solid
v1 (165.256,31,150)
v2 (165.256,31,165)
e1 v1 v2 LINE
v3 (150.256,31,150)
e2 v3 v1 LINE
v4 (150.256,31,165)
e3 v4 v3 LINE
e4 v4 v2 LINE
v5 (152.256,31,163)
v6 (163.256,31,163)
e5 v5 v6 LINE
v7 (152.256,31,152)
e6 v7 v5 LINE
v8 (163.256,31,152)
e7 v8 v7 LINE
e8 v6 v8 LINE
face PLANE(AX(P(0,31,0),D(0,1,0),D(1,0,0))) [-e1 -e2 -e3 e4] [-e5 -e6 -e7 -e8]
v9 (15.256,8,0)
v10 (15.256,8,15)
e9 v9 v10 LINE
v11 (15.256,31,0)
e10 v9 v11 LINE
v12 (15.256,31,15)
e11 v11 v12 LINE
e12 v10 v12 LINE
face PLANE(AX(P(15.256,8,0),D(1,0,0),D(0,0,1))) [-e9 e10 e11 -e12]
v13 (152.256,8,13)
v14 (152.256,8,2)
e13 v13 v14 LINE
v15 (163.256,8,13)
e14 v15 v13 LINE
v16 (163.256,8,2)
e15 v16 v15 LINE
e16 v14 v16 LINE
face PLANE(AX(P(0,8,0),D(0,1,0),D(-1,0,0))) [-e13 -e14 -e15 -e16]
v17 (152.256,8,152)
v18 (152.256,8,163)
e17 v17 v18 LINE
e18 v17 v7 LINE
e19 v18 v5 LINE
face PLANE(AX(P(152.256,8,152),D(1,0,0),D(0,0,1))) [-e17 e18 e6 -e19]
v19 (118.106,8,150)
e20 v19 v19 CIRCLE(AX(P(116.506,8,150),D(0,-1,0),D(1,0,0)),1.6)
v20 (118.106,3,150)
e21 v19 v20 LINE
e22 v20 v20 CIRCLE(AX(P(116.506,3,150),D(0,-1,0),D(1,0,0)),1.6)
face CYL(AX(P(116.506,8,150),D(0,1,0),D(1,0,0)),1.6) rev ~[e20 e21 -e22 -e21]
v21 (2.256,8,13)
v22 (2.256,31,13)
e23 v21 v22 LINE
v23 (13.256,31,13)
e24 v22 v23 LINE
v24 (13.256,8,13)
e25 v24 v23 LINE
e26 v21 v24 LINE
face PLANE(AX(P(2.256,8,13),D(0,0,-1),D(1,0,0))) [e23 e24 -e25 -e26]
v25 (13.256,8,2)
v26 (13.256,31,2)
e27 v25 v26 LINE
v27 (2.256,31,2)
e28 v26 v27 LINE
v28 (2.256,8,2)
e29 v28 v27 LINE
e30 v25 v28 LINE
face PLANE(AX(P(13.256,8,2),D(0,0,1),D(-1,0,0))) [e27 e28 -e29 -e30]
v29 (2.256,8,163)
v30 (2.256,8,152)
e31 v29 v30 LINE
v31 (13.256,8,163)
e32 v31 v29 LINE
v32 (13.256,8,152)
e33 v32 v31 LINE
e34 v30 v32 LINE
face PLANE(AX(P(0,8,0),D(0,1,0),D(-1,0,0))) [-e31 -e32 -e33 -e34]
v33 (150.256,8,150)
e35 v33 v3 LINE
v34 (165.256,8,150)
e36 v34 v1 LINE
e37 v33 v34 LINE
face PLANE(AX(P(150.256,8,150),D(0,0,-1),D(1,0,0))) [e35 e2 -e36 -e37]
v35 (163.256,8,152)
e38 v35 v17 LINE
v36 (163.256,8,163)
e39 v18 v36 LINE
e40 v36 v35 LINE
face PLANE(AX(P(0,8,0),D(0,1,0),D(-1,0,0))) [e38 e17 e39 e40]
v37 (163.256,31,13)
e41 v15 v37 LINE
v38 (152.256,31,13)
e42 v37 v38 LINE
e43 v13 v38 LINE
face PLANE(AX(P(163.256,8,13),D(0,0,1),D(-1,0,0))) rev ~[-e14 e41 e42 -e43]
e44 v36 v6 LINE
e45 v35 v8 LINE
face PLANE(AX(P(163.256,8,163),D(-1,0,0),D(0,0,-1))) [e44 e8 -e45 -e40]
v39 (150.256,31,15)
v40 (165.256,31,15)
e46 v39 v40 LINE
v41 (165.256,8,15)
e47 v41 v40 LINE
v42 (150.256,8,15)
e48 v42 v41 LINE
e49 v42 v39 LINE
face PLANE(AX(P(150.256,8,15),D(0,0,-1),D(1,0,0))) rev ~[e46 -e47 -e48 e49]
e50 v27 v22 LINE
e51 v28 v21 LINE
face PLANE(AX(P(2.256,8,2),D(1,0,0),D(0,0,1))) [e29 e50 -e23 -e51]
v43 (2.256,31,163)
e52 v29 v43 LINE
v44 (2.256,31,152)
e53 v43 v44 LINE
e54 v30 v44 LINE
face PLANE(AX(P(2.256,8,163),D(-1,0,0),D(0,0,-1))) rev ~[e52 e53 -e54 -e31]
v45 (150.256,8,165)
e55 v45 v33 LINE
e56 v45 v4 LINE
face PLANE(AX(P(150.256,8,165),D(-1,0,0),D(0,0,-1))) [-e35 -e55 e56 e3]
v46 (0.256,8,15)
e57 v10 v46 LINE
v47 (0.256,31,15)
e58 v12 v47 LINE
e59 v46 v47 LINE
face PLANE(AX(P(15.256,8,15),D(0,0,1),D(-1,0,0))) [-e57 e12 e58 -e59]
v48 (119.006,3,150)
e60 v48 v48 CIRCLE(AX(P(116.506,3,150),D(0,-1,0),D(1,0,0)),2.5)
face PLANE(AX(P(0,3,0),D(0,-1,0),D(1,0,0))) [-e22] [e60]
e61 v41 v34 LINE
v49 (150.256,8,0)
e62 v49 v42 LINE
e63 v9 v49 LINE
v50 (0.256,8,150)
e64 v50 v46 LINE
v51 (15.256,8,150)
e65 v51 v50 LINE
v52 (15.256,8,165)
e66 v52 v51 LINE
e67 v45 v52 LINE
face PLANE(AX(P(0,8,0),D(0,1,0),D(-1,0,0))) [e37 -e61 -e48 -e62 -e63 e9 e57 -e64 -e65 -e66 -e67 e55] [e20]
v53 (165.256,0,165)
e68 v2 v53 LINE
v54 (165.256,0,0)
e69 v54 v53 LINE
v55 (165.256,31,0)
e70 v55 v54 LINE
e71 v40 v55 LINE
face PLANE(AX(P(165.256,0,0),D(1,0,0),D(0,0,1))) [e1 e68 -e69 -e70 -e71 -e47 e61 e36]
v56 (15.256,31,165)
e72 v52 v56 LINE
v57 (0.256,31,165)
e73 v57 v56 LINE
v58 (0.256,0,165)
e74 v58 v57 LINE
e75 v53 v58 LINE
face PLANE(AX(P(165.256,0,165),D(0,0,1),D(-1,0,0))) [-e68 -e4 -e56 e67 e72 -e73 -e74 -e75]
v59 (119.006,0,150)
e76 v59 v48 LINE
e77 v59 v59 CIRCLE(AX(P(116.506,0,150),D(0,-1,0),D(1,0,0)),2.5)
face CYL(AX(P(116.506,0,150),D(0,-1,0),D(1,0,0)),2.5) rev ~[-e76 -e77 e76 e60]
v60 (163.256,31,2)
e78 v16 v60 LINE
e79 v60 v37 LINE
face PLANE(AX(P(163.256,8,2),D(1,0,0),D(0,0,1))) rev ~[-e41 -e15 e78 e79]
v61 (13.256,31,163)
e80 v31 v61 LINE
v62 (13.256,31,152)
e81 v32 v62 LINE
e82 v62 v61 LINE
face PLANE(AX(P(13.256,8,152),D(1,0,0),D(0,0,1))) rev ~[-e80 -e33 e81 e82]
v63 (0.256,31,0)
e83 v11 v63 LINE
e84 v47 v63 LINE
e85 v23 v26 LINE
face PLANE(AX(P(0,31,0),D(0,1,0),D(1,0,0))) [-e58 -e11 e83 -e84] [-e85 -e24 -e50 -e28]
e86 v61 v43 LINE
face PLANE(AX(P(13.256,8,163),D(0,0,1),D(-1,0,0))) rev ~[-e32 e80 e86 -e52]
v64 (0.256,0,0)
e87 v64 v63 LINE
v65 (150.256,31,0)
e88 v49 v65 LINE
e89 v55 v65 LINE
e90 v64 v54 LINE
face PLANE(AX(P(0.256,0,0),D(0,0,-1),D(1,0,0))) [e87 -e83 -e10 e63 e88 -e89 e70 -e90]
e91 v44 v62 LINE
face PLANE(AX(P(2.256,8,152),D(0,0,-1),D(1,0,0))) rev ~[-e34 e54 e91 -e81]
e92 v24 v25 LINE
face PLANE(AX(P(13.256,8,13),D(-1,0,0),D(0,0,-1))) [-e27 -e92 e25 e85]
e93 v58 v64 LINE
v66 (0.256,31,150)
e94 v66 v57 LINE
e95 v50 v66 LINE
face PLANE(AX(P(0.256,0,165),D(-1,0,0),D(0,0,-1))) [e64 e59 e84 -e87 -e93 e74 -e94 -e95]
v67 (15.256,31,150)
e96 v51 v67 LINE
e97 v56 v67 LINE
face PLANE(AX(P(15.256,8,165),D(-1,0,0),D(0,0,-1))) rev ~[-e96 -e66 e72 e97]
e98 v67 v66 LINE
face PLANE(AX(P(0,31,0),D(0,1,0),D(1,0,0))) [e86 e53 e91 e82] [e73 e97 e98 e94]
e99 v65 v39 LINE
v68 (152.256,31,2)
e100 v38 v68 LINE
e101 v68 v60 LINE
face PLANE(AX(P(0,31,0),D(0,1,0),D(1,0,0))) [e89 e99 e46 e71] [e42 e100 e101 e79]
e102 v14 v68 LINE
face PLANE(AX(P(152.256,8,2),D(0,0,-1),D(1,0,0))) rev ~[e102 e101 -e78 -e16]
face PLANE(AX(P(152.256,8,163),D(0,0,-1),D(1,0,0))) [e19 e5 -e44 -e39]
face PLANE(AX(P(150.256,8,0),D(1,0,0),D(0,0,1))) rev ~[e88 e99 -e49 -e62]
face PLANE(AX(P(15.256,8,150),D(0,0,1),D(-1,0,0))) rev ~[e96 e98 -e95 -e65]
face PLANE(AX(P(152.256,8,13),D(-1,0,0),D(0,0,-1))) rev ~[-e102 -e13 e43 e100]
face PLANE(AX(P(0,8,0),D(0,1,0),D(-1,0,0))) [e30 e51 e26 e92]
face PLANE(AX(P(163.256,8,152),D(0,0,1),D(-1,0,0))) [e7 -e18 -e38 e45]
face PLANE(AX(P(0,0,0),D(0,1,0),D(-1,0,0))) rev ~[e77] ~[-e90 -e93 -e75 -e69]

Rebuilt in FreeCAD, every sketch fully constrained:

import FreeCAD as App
import Part
import Sketcher
from FreeCAD import Vector

doc = App.newDocument("Part")
body = doc.addObject("PartDesign::Body", "Body")

sketch1 = doc.addObject("Sketcher::SketchObject", "Sketch")
body.addObject(sketch1)
sketch1.AttachmentSupport = (doc.XZ_Plane, [""])
sketch1.MapMode = "FlatFace"
sketch1.addGeometry([
    Part.LineSegment(Vector(165, 0, 0), Vector(0, 0, 0)),
    Part.LineSegment(Vector(0, 0, 0), Vector(0, 165, 0)),
    Part.LineSegment(Vector(0, 165, 0), Vector(165, 165, 0)),
    Part.LineSegment(Vector(165, 165, 0), Vector(165, 0, 0)),
], False)
sketch1.addConstraint([
    Sketcher.Constraint("Coincident", 0, 2, 1, 1),
    Sketcher.Constraint("Coincident", 1, 2, 2, 1),
    Sketcher.Constraint("Coincident", 2, 2, 3, 1),
    Sketcher.Constraint("Coincident", 3, 2, 0, 1),
    Sketcher.Constraint("Horizontal", 0),
    Sketcher.Constraint("Vertical", 1),
    Sketcher.Constraint("Horizontal", 2),
    Sketcher.Constraint("Vertical", 3),
    Sketcher.Constraint("PointOnObject", 0, 2, -1),
    Sketcher.Constraint("Equal", 2, 1),
    Sketcher.Constraint("DistanceX", 0, 2, 0, 1, 165.0),
    Sketcher.Constraint("DistanceX", -1, 1, 0, 2, 0.256),
])
pad1 = doc.addObject("PartDesign::Pad", "Pad")
body.addObject(pad1)
pad1.Profile = sketch1
pad1.Length = 8
pad1.Reversed = True

sketch2 = doc.addObject("Sketcher::SketchObject", "Sketch001")
body.addObject(sketch2)
sketch2.AttachmentSupport = (doc.XZ_Plane, [""])
sketch2.MapMode = "FlatFace"
sketch2.AttachmentOffset = App.Placement(Vector(0, 0, -8), App.Rotation())
sketch2.addGeometry([
    Part.LineSegment(Vector(165, 15, 0), Vector(165, 0, 0)),
    Part.LineSegment(Vector(165, 0, 0), Vector(150, 0, 0)),
    Part.LineSegment(Vector(150, 0, 0), Vector(150, 15, 0)),
    Part.LineSegment(Vector(150, 15, 0), Vector(165, 15, 0)),
    Part.LineSegment(Vector(163, 13, 0), Vector(152, 13, 0)),
    Part.LineSegment(Vector(152, 13, 0), Vector(152, 2, 0)),
    Part.LineSegment(Vector(152, 2, 0), Vector(163, 2, 0)),
    Part.LineSegment(Vector(163, 2, 0), Vector(163, 13, 0)),
    Part.LineSegment(Vector(150, 150, 0), Vector(150, 165, 0)),
    Part.LineSegment(Vector(150, 165, 0), Vector(165, 165, 0)),
    Part.LineSegment(Vector(165, 165, 0), Vector(165, 150, 0)),
    Part.LineSegment(Vector(165, 150, 0), Vector(150, 150, 0)),
    Part.LineSegment(Vector(152, 152, 0), Vector(163, 152, 0)),
    Part.LineSegment(Vector(163, 152, 0), Vector(163, 163, 0)),
    Part.LineSegment(Vector(163, 163, 0), Vector(152, 163, 0)),
    Part.LineSegment(Vector(152, 163, 0), Vector(152, 152, 0)),
    Part.LineSegment(Vector(0, 165, 0), Vector(15, 165, 0)),
    Part.LineSegment(Vector(15, 165, 0), Vector(15, 150, 0)),
    Part.LineSegment(Vector(15, 150, 0), Vector(0, 150, 0)),
    Part.LineSegment(Vector(0, 150, 0), Vector(0, 165, 0)),
    Part.LineSegment(Vector(2, 163, 0), Vector(2, 152, 0)),
    Part.LineSegment(Vector(2, 152, 0), Vector(13, 152, 0)),
    Part.LineSegment(Vector(13, 152, 0), Vector(13, 163, 0)),
    Part.LineSegment(Vector(13, 163, 0), Vector(2, 163, 0)),
    Part.LineSegment(Vector(15, 15, 0), Vector(15, 0, 0)),
    Part.LineSegment(Vector(15, 0, 0), Vector(0, 0, 0)),
    Part.LineSegment(Vector(0, 0, 0), Vector(0, 15, 0)),
    Part.LineSegment(Vector(0, 15, 0), Vector(15, 15, 0)),
    Part.LineSegment(Vector(13, 2, 0), Vector(13, 13, 0)),
    Part.LineSegment(Vector(13, 13, 0), Vector(2, 13, 0)),
    Part.LineSegment(Vector(2, 13, 0), Vector(2, 2, 0)),
    Part.LineSegment(Vector(2, 2, 0), Vector(13, 2, 0)),
], False)
sketch2.addConstraint([
    Sketcher.Constraint("Coincident", 0, 2, 1, 1),
    Sketcher.Constraint("Coincident", 1, 2, 2, 1),
    Sketcher.Constraint("Coincident", 2, 2, 3, 1),
    Sketcher.Constraint("Coincident", 3, 2, 0, 1),
    Sketcher.Constraint("Coincident", 4, 2, 5, 1),
    Sketcher.Constraint("Coincident", 5, 2, 6, 1),
    Sketcher.Constraint("Coincident", 6, 2, 7, 1),
    Sketcher.Constraint("Coincident", 7, 2, 4, 1),
    Sketcher.Constraint("Coincident", 8, 2, 9, 1),
    Sketcher.Constraint("Coincident", 9, 2, 10, 1),
    Sketcher.Constraint("Coincident", 10, 2, 11, 1),
    Sketcher.Constraint("Coincident", 11, 2, 8, 1),
    Sketcher.Constraint("Coincident", 12, 2, 13, 1),
    Sketcher.Constraint("Coincident", 13, 2, 14, 1),
    Sketcher.Constraint("Coincident", 14, 2, 15, 1),
    Sketcher.Constraint("Coincident", 15, 2, 12, 1),
    Sketcher.Constraint("Coincident", 16, 2, 17, 1),
    Sketcher.Constraint("Coincident", 17, 2, 18, 1),
    Sketcher.Constraint("Coincident", 18, 2, 19, 1),
    Sketcher.Constraint("Coincident", 19, 2, 16, 1),
    Sketcher.Constraint("Coincident", 20, 2, 21, 1),
    Sketcher.Constraint("Coincident", 21, 2, 22, 1),
    Sketcher.Constraint("Coincident", 22, 2, 23, 1),
    Sketcher.Constraint("Coincident", 23, 2, 20, 1),
    Sketcher.Constraint("Coincident", 24, 2, 25, 1),
    Sketcher.Constraint("Coincident", 25, 2, 26, 1),
    Sketcher.Constraint("Coincident", 26, 2, 27, 1),
    Sketcher.Constraint("Coincident", 27, 2, 24, 1),
    Sketcher.Constraint("Coincident", 28, 2, 29, 1),
    Sketcher.Constraint("Coincident", 29, 2, 30, 1),
    Sketcher.Constraint("Coincident", 30, 2, 31, 1),
    Sketcher.Constraint("Coincident", 31, 2, 28, 1),
    Sketcher.Constraint("Vertical", 0),
    Sketcher.Constraint("Horizontal", 1),
    Sketcher.Constraint("Vertical", 2),
    Sketcher.Constraint("Horizontal", 3),
    Sketcher.Constraint("Horizontal", 4),
    Sketcher.Constraint("Vertical", 5),
    Sketcher.Constraint("Horizontal", 6),
    Sketcher.Constraint("Vertical", 7),
    Sketcher.Constraint("Vertical", 8),
    Sketcher.Constraint("Horizontal", 9),
    Sketcher.Constraint("Vertical", 10),
    Sketcher.Constraint("Horizontal", 11),
    Sketcher.Constraint("Horizontal", 12),
    Sketcher.Constraint("Vertical", 13),
    Sketcher.Constraint("Horizontal", 14),
    Sketcher.Constraint("Vertical", 15),
    Sketcher.Constraint("Horizontal", 16),
    Sketcher.Constraint("Vertical", 17),
    Sketcher.Constraint("Horizontal", 18),
    Sketcher.Constraint("Vertical", 19),
    Sketcher.Constraint("Vertical", 20),
    Sketcher.Constraint("Horizontal", 21),
    Sketcher.Constraint("Vertical", 22),
    Sketcher.Constraint("Horizontal", 23),
    Sketcher.Constraint("Vertical", 24),
    Sketcher.Constraint("Horizontal", 25),
    Sketcher.Constraint("Vertical", 26),
    Sketcher.Constraint("Horizontal", 27),
    Sketcher.Constraint("Vertical", 28),
    Sketcher.Constraint("Horizontal", 29),
    Sketcher.Constraint("Vertical", 30),
    Sketcher.Constraint("Horizontal", 31),
    Sketcher.Constraint("PointOnObject", 0, 2, -1),
    Sketcher.Constraint("PointOnObject", 24, 2, -1),
    Sketcher.Constraint("Horizontal", 9, 2, 16, 2),
    Sketcher.Constraint("Horizontal", 11, 2, 17, 2),
    Sketcher.Constraint("Horizontal", 15, 2, 20, 2),
    Sketcher.Constraint("Horizontal", 14, 2, 22, 2),
    Sketcher.Constraint("Horizontal", 3, 2, 26, 2),
    Sketcher.Constraint("Horizontal", 7, 2, 28, 2),
    Sketcher.Constraint("Horizontal", 6, 2, 30, 2),
    Sketcher.Constraint("Vertical", 2, 2, 8, 2),
    Sketcher.Constraint("Vertical", 3, 2, 9, 2),
    Sketcher.Constraint("Vertical", 7, 2, 12, 2),
    Sketcher.Constraint("Vertical", 5, 2, 14, 2),
    Sketcher.Constraint("Vertical", 17, 2, 24, 2),
    Sketcher.Constraint("Vertical", 19, 2, 25, 2),
    Sketcher.Constraint("Vertical", 22, 2, 28, 2),
    Sketcher.Constraint("Vertical", 23, 2, 29, 2),
    Sketcher.Constraint("Equal", 11, 16),
    Sketcher.Constraint("Equal", 14, 21),
    Sketcher.Constraint("Equal", 27, 0),
    Sketcher.Constraint("Equal", 31, 5),
    Sketcher.Constraint("Equal", 2, 8),
    Sketcher.Constraint("Equal", 7, 13),
    Sketcher.Constraint("DistanceX", 1, 2, 1, 1, 15.0),
    Sketcher.Constraint("DistanceY", -1, 1, 5, 2, 2.0),
    Sketcher.Constraint("DistanceX", 2, 2, 4, 2, 2.0),
    Sketcher.Constraint("DistanceY", 4, 2, 2, 2, 2.0),
    Sketcher.Constraint("DistanceY", 10, 2, 12, 2, 2.0),
    Sketcher.Constraint("DistanceX", 18, 2, 20, 2, 2.0),
    Sketcher.Constraint("DistanceY", -1, 1, 8, 2, 165.0),
    Sketcher.Constraint("DistanceX", 16, 2, 8, 2, 135.0),
    Sketcher.Constraint("DistanceX", -1, 1, 0, 2, 165.256),
])
pad2 = doc.addObject("PartDesign::Pad", "Pad001")
body.addObject(pad2)
pad2.Profile = sketch2
pad2.Length = 23
pad2.Reversed = True

sketch3 = doc.addObject("Sketcher::SketchObject", "Sketch002")
body.addObject(sketch3)
sketch3.AttachmentSupport = (doc.XZ_Plane, [""])
sketch3.MapMode = "FlatFace"
sketch3.AttachmentOffset = App.Placement(Vector(0, 0, -8), App.Rotation())
sketch3.addGeometry(Part.Circle(Vector(116.5, 150, 0), Vector(0, 0, 1), 1.6), False)
sketch3.addConstraint([
    Sketcher.Constraint("Diameter", 0, 3.2),
    Sketcher.Constraint("DistanceY", -1, 1, 0, 3, 150.0),
    Sketcher.Constraint("DistanceX", -1, 1, 0, 3, 116.506),
])
pocket1 = doc.addObject("PartDesign::Pocket", "Pocket")
body.addObject(pocket1)
pocket1.Profile = sketch3
pocket1.Length = 8
pocket1.Reversed = True

sketch4 = doc.addObject("Sketcher::SketchObject", "Sketch003")
body.addObject(sketch4)
sketch4.AttachmentSupport = (doc.XZ_Plane, [""])
sketch4.MapMode = "FlatFace"
sketch4.addGeometry([
    Part.Circle(Vector(116.5, 150, 0), Vector(0, 0, 1), 2.5),
    Part.Circle(Vector(116.5, 150, 0), Vector(0, 0, 1), 1.6),
], False)
sketch4.addConstraint([
    Sketcher.Constraint("Coincident", 1, 3, 0, 3),
    Sketcher.Constraint("Diameter", 0, 5.0),
    Sketcher.Constraint("Diameter", 1, 3.2),
    Sketcher.Constraint("DistanceY", -1, 1, 0, 3, 150.0),
    Sketcher.Constraint("DistanceX", -1, 1, 0, 3, 116.506),
])
pocket2 = doc.addObject("PartDesign::Pocket", "Pocket001")
body.addObject(pocket2)
pocket2.Profile = sketch4
pocket2.Length = 3

doc.recompute()
